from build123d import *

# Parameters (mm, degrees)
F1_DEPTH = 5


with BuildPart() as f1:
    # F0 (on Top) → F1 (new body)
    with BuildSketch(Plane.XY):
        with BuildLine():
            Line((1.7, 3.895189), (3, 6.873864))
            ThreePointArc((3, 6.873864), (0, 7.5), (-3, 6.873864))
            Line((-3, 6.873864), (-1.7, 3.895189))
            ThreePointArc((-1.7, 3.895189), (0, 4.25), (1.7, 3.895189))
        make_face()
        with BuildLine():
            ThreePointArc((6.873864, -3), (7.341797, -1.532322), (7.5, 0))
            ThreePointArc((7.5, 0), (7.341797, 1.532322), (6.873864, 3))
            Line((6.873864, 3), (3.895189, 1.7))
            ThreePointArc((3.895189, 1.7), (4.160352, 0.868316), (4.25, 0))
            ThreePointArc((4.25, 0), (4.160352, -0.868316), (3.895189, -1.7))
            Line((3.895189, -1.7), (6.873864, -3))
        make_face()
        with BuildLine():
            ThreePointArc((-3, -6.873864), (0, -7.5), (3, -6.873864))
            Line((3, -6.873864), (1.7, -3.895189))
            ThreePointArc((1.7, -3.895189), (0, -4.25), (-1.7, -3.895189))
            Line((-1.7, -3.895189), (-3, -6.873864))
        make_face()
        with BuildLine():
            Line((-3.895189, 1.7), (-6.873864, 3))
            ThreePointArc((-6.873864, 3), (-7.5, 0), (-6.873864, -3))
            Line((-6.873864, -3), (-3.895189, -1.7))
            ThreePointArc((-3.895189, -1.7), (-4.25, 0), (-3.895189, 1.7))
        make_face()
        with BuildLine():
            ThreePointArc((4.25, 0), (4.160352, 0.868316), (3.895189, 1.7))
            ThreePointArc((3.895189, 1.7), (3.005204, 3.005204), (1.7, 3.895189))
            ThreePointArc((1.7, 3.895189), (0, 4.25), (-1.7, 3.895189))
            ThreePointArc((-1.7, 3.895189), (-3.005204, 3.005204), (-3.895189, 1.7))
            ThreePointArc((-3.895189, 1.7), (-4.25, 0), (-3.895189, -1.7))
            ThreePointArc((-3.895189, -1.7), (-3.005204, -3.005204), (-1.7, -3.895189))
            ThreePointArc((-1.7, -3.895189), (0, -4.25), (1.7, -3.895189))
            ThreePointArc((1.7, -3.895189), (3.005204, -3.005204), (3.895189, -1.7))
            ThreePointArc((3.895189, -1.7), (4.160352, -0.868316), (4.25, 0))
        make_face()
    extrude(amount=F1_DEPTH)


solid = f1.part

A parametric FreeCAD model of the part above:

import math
import FreeCAD as App
import Part
import Sketcher

V = App.Vector
Q = App.Units.Quantity

doc = App.newDocument("Part")
params = doc.addObject("Spreadsheet::Sheet", "Params")
for row, (alias, value) in enumerate([
    ("sketch1_length", "3.250001 mm"),
    ("pad1_length", "5 mm"),
], start=1):
    params.set(f"A{row}", alias)
    params.set(f"B{row}", "=" + value)
    params.setAlias(f"B{row}", alias)

body = doc.addObject("PartDesign::Body", "Body")

sketch1 = body.newObject("Sketcher::SketchObject", "Sketch")
sketch1.AttachmentSupport = (doc.getObject("XY_Plane"), [""])
sketch1.MapMode = "FlatFace"
sketch1.addGeometry([
    Part.LineSegment(V(1.7, 3.9, 0), V(3, 6.9, 0)),
    Part.ArcOfCircle(Part.Circle(V(0, 0, 0), V(0, 0, 1), 7.5), math.radians(66), math.radians(114)),
    Part.LineSegment(V(-3, 6.9, 0), V(-1.7, 3.9, 0)),
    Part.ArcOfCircle(Part.Circle(V(0, 0, 0), V(0, 0, 1), 4.2), math.radians(114), math.radians(156)),
    Part.LineSegment(V(-3.9, 1.7, 0), V(-6.9, 3, 0)),
    Part.ArcOfCircle(Part.Circle(V(0, 0, 0), V(0, 0, 1), 7.5), math.radians(156), math.radians(204)),
    Part.LineSegment(V(-6.9, -3, 0), V(-3.9, -1.7, 0)),
    Part.ArcOfCircle(Part.Circle(V(0, 0, 0), V(0, 0, 1), 4.2), math.radians(-156), math.radians(-114)),
    Part.LineSegment(V(-1.7, -3.9, 0), V(-3, -6.9, 0)),
    Part.ArcOfCircle(Part.Circle(V(0, 0, 0), V(0, 0, 1), 7.5), math.radians(-114), math.radians(-66)),
    Part.LineSegment(V(3, -6.9, 0), V(1.7, -3.9, 0)),
    Part.ArcOfCircle(Part.Circle(V(0, 0, 0), V(0, 0, 1), 4.2), math.radians(-66), math.radians(-24)),
    Part.LineSegment(V(3.9, -1.7, 0), V(6.9, -3, 0)),
    Part.ArcOfCircle(Part.Circle(V(0, 0, 0), V(0, 0, 1), 7.5), math.radians(-24), math.radians(0)),
    Part.ArcOfCircle(Part.Circle(V(0, 0, 0), V(0, 0, 1), 7.5), math.radians(0), math.radians(24)),
    Part.LineSegment(V(6.9, 3, 0), V(3.9, 1.7, 0)),
    Part.ArcOfCircle(Part.Circle(V(0, 0, 0), V(0, 0, 1), 4.2), math.radians(24), math.radians(66)),
], False)
sketch1.addConstraint([
    Sketcher.Constraint("Coincident", 0, 2, 1, 1),
    Sketcher.Constraint("Coincident", 1, 2, 2, 1),
    Sketcher.Constraint("Coincident", 2, 2, 3, 1),
    Sketcher.Constraint("Coincident", 3, 2, 4, 1),
    Sketcher.Constraint("Coincident", 4, 2, 5, 1),
    Sketcher.Constraint("Coincident", 5, 2, 6, 1),
    Sketcher.Constraint("Coincident", 6, 2, 7, 1),
    Sketcher.Constraint("Coincident", 7, 2, 8, 1),
    Sketcher.Constraint("Coincident", 8, 2, 9, 1),
    Sketcher.Constraint("Coincident", 9, 2, 10, 1),
    Sketcher.Constraint("Coincident", 10, 2, 11, 1),
    Sketcher.Constraint("Coincident", 11, 2, 12, 1),
    Sketcher.Constraint("Coincident", 12, 2, 13, 1),
    Sketcher.Constraint("Tangent", 13, 2, 14, 1),
    Sketcher.Constraint("Coincident", 14, 2, 15, 1),
    Sketcher.Constraint("Coincident", 15, 2, 16, 1),
    Sketcher.Constraint("Coincident", 16, 2, 0, 1),
    Sketcher.Constraint("Coincident", 1, 3, -1, 1),
    Sketcher.Constraint("Coincident", 3, 3, -1, 1),
    Sketcher.Constraint("Coincident", 5, 3, -1, 1),
    Sketcher.Constraint("Coincident", 7, 3, -1, 1),
    Sketcher.Constraint("Coincident", 9, 3, -1, 1),
    Sketcher.Constraint("Coincident", 11, 3, -1, 1),
    Sketcher.Constraint("Coincident", 16, 3, -1, 1),
    Sketcher.Constraint("Equal", 1, 5),
    Sketcher.Constraint("Equal", 3, 7),
    Sketcher.Constraint("Equal", 5, 9),
    Sketcher.Constraint("Equal", 7, 11),
    Sketcher.Constraint("Equal", 13, 14),
    Sketcher.Constraint("Equal", 11, 16),
    Sketcher.Constraint("Symmetric", 4, 2, 12, 2, -1, 1),
    Sketcher.Constraint("Symmetric", 5, 2, 14, 2, -1, 1),
    Sketcher.Constraint("PointOnObject", 13, 2, -1),
    Sketcher.Constraint("Perpendicular", 0, 4),
    Sketcher.Constraint("Perpendicular", 2, 6),
    Sketcher.Constraint("Perpendicular", 4, 8),
    Sketcher.Constraint("Perpendicular", 6, 10),
    Sketcher.Constraint("Perpendicular", 8, 12),
    Sketcher.Constraint("Perpendicular", 10, 15),
    Sketcher.Constraint("Horizontal", 0, 2, 1, 2),
    Sketcher.Constraint("Horizontal", 8, 2, 9, 2),
    Sketcher.Constraint("Horizontal", 7, 2, 10, 2),
    Sketcher.Constraint("Horizontal", 6, 2, 11, 2),
    Sketcher.Constraint("Vertical", 2, 2, 7, 2),
    Sketcher.Constraint("DistanceX", -1, 1, 0, 2, Q("3 mm")),
    Sketcher.Constraint("DistanceY", -1, 1, 4, 2, Q("3 mm")),
    Sketcher.Constraint("DistanceX", 2, 2, -1, 1, Q("1.7 mm")),
    Sketcher.Constraint("DistanceX", -1, 1, 13, 2, Q("7.5 mm")),
    Sketcher.Constraint("Distance", 0, Q("3.250001 mm")),
    Sketcher.Constraint("Radius", 13, Q("7.500029 mm")),
])
sketch1.setExpression("Constraints[48]", "Params.sketch1_length")
pad1 = body.newObject("PartDesign::Pad", "Pad")
pad1.Profile = sketch1
pad1.setExpression("Length", "Params.pad1_length")

doc.recompute()
